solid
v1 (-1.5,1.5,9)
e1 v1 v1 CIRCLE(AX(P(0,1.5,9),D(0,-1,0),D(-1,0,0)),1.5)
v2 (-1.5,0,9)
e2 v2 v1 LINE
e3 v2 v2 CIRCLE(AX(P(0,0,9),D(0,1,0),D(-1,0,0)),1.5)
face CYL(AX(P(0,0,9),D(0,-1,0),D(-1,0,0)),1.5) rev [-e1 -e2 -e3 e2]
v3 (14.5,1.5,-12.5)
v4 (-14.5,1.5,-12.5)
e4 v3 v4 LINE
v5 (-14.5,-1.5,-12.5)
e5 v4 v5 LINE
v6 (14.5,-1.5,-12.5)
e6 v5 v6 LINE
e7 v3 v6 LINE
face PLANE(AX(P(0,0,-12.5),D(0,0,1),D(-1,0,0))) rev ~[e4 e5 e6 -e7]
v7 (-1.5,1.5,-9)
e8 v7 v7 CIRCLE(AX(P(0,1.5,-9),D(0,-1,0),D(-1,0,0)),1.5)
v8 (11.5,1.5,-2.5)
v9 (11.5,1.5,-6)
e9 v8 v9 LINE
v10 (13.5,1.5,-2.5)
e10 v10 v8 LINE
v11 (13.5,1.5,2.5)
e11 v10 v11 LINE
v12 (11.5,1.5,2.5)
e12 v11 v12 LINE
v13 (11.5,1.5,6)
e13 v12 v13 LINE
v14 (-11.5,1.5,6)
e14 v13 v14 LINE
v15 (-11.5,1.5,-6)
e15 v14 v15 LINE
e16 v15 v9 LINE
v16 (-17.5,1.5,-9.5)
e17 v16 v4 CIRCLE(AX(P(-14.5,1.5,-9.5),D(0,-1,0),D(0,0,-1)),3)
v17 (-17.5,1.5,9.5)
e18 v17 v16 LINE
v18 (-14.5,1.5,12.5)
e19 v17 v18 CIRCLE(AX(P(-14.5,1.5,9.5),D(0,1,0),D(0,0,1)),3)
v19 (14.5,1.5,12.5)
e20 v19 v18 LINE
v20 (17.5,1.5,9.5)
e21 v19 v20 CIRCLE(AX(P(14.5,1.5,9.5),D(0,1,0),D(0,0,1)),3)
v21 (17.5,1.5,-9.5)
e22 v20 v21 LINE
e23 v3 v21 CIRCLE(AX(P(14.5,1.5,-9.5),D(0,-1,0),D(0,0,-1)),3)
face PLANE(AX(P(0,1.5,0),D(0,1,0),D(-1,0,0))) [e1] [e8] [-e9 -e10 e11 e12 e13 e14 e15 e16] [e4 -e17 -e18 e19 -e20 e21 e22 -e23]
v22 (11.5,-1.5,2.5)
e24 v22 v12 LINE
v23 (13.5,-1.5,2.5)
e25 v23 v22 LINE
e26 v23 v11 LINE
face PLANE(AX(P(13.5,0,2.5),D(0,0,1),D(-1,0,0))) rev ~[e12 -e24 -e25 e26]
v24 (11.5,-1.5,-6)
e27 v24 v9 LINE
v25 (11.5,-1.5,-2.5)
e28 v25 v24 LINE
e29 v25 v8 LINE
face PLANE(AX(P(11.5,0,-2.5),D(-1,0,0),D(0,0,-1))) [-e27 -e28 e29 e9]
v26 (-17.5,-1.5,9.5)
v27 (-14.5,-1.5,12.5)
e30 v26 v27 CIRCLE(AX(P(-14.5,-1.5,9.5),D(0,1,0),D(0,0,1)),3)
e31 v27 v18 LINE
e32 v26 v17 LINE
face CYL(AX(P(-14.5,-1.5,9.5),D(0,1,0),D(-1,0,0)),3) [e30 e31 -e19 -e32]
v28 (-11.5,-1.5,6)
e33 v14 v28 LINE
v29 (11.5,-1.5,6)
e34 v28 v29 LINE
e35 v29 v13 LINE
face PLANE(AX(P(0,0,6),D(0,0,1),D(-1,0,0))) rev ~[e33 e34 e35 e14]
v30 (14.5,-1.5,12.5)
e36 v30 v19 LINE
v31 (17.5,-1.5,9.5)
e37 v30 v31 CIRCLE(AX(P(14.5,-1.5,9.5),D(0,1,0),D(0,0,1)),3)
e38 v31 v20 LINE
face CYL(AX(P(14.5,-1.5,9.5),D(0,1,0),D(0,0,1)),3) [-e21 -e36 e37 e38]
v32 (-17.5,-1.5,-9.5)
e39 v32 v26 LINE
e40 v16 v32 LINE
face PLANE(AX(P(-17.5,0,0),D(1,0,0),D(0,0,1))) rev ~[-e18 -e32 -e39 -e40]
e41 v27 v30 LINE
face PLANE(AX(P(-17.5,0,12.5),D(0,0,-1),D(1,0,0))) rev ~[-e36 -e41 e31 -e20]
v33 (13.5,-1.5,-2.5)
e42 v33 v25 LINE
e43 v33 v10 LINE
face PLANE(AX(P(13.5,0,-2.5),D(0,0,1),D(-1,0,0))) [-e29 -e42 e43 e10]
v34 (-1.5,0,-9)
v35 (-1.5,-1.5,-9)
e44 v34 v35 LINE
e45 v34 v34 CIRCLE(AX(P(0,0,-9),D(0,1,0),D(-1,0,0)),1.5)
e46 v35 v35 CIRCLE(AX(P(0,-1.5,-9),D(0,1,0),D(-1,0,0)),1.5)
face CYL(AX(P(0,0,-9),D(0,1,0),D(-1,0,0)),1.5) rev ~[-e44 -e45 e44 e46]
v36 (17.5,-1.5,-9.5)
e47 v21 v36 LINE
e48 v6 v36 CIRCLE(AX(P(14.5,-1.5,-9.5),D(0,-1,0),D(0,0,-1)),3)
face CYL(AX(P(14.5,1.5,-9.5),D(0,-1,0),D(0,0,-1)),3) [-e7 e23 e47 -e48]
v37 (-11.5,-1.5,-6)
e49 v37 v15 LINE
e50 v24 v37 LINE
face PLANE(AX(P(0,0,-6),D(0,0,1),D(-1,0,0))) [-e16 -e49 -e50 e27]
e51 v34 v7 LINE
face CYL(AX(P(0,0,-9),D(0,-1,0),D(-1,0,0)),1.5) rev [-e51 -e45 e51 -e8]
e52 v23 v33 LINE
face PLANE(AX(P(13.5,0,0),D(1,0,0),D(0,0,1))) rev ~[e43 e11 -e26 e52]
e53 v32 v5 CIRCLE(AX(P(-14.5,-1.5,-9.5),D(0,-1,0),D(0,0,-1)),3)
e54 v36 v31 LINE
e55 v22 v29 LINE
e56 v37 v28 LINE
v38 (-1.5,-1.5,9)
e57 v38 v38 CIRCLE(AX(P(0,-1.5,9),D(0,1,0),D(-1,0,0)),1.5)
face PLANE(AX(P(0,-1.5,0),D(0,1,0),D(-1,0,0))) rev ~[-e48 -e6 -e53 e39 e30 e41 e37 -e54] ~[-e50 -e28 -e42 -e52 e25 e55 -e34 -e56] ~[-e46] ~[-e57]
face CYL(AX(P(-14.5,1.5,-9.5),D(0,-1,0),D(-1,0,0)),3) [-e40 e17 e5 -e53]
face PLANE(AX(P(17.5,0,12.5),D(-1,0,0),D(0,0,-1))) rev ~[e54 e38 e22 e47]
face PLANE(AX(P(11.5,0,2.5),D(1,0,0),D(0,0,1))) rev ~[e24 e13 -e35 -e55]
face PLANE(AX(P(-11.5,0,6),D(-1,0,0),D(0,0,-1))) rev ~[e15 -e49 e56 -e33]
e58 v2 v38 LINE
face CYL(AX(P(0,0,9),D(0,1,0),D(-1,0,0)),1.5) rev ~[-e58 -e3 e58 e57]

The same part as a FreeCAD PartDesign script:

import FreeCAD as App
import Part
import Sketcher


def edges_at(feature, points):
    """Names of the edges that pass closest to the given points."""
    edges = feature.Shape.Edges
    near = lambda p: min(range(len(edges)), key=lambda i: edges[i].distToShape(Part.Vertex(*p))[0])
    return sorted({f"Edge{near(p) + 1}" for p in points})

doc = App.newDocument("Part")
body = doc.addObject("PartDesign::Body", "Body")

# Sketch on XZ plane
sketch1 = body.newObject("Sketcher::SketchObject", "Sketch")
sketch1.AttachmentSupport = (doc.getObject("XZ_Plane"), [""])
sketch1.MapMode = "FlatFace"
sketch1.addGeometry(Part.LineSegment(App.Vector(-17.5, 12.5, 0), App.Vector(17.5, 12.5, 0)), False)
sketch1.addGeometry(Part.LineSegment(App.Vector(17.5, 12.5, 0), App.Vector(17.5, -12.5, 0)), False)
sketch1.addGeometry(Part.LineSegment(App.Vector(17.5, -12.5, 0), App.Vector(-17.5, -12.5, 0)), False)
sketch1.addGeometry(Part.LineSegment(App.Vector(-17.5, -12.5, 0), App.Vector(-17.5, 12.5, 0)), False)
sketch1.addGeometry(Part.LineSegment(App.Vector(-11.5, 6, 0), App.Vector(-11.5, -6, 0)), False)
sketch1.addGeometry(Part.LineSegment(App.Vector(-11.5, -6, 0), App.Vector(11.5, -6, 0)), False)
sketch1.addGeometry(Part.LineSegment(App.Vector(11.5, -6, 0), App.Vector(11.5, -2.5, 0)), False)
sketch1.addGeometry(Part.LineSegment(App.Vector(11.5, -2.5, 0), App.Vector(13.5, -2.5, 0)), False)
sketch1.addGeometry(Part.LineSegment(App.Vector(13.5, -2.5, 0), App.Vector(13.5, 2.5, 0)), False)
sketch1.addGeometry(Part.LineSegment(App.Vector(13.5, 2.5, 0), App.Vector(11.5, 2.5, 0)), False)
sketch1.addGeometry(Part.LineSegment(App.Vector(11.5, 2.5, 0), App.Vector(11.5, 6, 0)), False)
sketch1.addGeometry(Part.LineSegment(App.Vector(11.5, 6, 0), App.Vector(-11.5, 6, 0)), False)
sketch1.addGeometry(Part.Circle(App.Vector(0, 9, 0), App.Vector(0, 0, 1), 1.5), False)
sketch1.addGeometry(Part.Circle(App.Vector(0, -9, 0), App.Vector(0, 0, 1), 1.5), False)
sketch1.addConstraint(Sketcher.Constraint("Coincident", 0, 2, 1, 1))
sketch1.addConstraint(Sketcher.Constraint("Coincident", 1, 2, 2, 1))
sketch1.addConstraint(Sketcher.Constraint("Coincident", 2, 2, 3, 1))
sketch1.addConstraint(Sketcher.Constraint("Coincident", 3, 2, 0, 1))
sketch1.addConstraint(Sketcher.Constraint("Coincident", 4, 2, 5, 1))
sketch1.addConstraint(Sketcher.Constraint("Coincident", 5, 2, 6, 1))
sketch1.addConstraint(Sketcher.Constraint("Coincident", 6, 2, 7, 1))
sketch1.addConstraint(Sketcher.Constraint("Coincident", 7, 2, 8, 1))
sketch1.addConstraint(Sketcher.Constraint("Coincident", 8, 2, 9, 1))
sketch1.addConstraint(Sketcher.Constraint("Coincident", 9, 2, 10, 1))
sketch1.addConstraint(Sketcher.Constraint("Coincident", 10, 2, 11, 1))
sketch1.addConstraint(Sketcher.Constraint("Coincident", 11, 2, 4, 1))
sketch1.addConstraint(Sketcher.Constraint("Horizontal", 0))
sketch1.addConstraint(Sketcher.Constraint("Vertical", 1))
sketch1.addConstraint(Sketcher.Constraint("Horizontal", 2))
sketch1.addConstraint(Sketcher.Constraint("Vertical", 3))
sketch1.addConstraint(Sketcher.Constraint("Vertical", 4))
sketch1.addConstraint(Sketcher.Constraint("Horizontal", 5))
sketch1.addConstraint(Sketcher.Constraint("Vertical", 6))
sketch1.addConstraint(Sketcher.Constraint("Horizontal", 7))
sketch1.addConstraint(Sketcher.Constraint("Vertical", 8))
sketch1.addConstraint(Sketcher.Constraint("Horizontal", 9))
sketch1.addConstraint(Sketcher.Constraint("Vertical", 10))
sketch1.addConstraint(Sketcher.Constraint("Horizontal", 11))
sketch1.addConstraint(Sketcher.Constraint("Equal", 12, 13))
sketch1.addConstraint(Sketcher.Constraint("Symmetric", 12, 3, 13, 3, -1, 1))
sketch1.addConstraint(Sketcher.Constraint("Symmetric", 0, 2, 2, 2, -1, 1))
sketch1.addConstraint(Sketcher.Constraint("Symmetric", 4, 2, 10, 2, -1, 1))
sketch1.addConstraint(Sketcher.Constraint("Symmetric", 6, 2, 9, 2, -1))
sketch1.addConstraint(Sketcher.Constraint("PointOnObject", 12, 3, -2))
sketch1.addConstraint(Sketcher.Constraint("Diameter", 12, 3.0))
sketch1.addConstraint(Sketcher.Constraint("DistanceX", 0, 1, 0, 2, 35.0))
sketch1.addConstraint(Sketcher.Constraint("DistanceX", 5, 1, 5, 2, 23.0))
sketch1.addConstraint(Sketcher.Constraint("DistanceX", 7, 1, 7, 2, 2.0))
sketch1.addConstraint(Sketcher.Constraint("DistanceY", 1, 2, 1, 1, 25.0))
sketch1.addConstraint(Sketcher.Constraint("DistanceY", 4, 2, -1, 1, 6.0))
sketch1.addConstraint(Sketcher.Constraint("DistanceY", 13, 3, 12, 3, 18.0))
sketch1.addConstraint(Sketcher.Constraint("DistanceY", 6, 2, -1, 1, 2.5))
pad1 = body.newObject("PartDesign::Pad", "Pad")
pad1.Profile = sketch1
pad1.Length = 3
pad1.Midplane = True
doc.recompute()

fillet = body.newObject("PartDesign::Fillet", "Fillet")
fillet.Base = (pad1, edges_at(pad1, [
    (-17.5, 0, 12.5),
    (17.5, 0, 12.5),
    (17.5, 0, -12.5),
    (-17.5, 0, -12.5),
]))
fillet.Radius = 3

doc.recompute()
